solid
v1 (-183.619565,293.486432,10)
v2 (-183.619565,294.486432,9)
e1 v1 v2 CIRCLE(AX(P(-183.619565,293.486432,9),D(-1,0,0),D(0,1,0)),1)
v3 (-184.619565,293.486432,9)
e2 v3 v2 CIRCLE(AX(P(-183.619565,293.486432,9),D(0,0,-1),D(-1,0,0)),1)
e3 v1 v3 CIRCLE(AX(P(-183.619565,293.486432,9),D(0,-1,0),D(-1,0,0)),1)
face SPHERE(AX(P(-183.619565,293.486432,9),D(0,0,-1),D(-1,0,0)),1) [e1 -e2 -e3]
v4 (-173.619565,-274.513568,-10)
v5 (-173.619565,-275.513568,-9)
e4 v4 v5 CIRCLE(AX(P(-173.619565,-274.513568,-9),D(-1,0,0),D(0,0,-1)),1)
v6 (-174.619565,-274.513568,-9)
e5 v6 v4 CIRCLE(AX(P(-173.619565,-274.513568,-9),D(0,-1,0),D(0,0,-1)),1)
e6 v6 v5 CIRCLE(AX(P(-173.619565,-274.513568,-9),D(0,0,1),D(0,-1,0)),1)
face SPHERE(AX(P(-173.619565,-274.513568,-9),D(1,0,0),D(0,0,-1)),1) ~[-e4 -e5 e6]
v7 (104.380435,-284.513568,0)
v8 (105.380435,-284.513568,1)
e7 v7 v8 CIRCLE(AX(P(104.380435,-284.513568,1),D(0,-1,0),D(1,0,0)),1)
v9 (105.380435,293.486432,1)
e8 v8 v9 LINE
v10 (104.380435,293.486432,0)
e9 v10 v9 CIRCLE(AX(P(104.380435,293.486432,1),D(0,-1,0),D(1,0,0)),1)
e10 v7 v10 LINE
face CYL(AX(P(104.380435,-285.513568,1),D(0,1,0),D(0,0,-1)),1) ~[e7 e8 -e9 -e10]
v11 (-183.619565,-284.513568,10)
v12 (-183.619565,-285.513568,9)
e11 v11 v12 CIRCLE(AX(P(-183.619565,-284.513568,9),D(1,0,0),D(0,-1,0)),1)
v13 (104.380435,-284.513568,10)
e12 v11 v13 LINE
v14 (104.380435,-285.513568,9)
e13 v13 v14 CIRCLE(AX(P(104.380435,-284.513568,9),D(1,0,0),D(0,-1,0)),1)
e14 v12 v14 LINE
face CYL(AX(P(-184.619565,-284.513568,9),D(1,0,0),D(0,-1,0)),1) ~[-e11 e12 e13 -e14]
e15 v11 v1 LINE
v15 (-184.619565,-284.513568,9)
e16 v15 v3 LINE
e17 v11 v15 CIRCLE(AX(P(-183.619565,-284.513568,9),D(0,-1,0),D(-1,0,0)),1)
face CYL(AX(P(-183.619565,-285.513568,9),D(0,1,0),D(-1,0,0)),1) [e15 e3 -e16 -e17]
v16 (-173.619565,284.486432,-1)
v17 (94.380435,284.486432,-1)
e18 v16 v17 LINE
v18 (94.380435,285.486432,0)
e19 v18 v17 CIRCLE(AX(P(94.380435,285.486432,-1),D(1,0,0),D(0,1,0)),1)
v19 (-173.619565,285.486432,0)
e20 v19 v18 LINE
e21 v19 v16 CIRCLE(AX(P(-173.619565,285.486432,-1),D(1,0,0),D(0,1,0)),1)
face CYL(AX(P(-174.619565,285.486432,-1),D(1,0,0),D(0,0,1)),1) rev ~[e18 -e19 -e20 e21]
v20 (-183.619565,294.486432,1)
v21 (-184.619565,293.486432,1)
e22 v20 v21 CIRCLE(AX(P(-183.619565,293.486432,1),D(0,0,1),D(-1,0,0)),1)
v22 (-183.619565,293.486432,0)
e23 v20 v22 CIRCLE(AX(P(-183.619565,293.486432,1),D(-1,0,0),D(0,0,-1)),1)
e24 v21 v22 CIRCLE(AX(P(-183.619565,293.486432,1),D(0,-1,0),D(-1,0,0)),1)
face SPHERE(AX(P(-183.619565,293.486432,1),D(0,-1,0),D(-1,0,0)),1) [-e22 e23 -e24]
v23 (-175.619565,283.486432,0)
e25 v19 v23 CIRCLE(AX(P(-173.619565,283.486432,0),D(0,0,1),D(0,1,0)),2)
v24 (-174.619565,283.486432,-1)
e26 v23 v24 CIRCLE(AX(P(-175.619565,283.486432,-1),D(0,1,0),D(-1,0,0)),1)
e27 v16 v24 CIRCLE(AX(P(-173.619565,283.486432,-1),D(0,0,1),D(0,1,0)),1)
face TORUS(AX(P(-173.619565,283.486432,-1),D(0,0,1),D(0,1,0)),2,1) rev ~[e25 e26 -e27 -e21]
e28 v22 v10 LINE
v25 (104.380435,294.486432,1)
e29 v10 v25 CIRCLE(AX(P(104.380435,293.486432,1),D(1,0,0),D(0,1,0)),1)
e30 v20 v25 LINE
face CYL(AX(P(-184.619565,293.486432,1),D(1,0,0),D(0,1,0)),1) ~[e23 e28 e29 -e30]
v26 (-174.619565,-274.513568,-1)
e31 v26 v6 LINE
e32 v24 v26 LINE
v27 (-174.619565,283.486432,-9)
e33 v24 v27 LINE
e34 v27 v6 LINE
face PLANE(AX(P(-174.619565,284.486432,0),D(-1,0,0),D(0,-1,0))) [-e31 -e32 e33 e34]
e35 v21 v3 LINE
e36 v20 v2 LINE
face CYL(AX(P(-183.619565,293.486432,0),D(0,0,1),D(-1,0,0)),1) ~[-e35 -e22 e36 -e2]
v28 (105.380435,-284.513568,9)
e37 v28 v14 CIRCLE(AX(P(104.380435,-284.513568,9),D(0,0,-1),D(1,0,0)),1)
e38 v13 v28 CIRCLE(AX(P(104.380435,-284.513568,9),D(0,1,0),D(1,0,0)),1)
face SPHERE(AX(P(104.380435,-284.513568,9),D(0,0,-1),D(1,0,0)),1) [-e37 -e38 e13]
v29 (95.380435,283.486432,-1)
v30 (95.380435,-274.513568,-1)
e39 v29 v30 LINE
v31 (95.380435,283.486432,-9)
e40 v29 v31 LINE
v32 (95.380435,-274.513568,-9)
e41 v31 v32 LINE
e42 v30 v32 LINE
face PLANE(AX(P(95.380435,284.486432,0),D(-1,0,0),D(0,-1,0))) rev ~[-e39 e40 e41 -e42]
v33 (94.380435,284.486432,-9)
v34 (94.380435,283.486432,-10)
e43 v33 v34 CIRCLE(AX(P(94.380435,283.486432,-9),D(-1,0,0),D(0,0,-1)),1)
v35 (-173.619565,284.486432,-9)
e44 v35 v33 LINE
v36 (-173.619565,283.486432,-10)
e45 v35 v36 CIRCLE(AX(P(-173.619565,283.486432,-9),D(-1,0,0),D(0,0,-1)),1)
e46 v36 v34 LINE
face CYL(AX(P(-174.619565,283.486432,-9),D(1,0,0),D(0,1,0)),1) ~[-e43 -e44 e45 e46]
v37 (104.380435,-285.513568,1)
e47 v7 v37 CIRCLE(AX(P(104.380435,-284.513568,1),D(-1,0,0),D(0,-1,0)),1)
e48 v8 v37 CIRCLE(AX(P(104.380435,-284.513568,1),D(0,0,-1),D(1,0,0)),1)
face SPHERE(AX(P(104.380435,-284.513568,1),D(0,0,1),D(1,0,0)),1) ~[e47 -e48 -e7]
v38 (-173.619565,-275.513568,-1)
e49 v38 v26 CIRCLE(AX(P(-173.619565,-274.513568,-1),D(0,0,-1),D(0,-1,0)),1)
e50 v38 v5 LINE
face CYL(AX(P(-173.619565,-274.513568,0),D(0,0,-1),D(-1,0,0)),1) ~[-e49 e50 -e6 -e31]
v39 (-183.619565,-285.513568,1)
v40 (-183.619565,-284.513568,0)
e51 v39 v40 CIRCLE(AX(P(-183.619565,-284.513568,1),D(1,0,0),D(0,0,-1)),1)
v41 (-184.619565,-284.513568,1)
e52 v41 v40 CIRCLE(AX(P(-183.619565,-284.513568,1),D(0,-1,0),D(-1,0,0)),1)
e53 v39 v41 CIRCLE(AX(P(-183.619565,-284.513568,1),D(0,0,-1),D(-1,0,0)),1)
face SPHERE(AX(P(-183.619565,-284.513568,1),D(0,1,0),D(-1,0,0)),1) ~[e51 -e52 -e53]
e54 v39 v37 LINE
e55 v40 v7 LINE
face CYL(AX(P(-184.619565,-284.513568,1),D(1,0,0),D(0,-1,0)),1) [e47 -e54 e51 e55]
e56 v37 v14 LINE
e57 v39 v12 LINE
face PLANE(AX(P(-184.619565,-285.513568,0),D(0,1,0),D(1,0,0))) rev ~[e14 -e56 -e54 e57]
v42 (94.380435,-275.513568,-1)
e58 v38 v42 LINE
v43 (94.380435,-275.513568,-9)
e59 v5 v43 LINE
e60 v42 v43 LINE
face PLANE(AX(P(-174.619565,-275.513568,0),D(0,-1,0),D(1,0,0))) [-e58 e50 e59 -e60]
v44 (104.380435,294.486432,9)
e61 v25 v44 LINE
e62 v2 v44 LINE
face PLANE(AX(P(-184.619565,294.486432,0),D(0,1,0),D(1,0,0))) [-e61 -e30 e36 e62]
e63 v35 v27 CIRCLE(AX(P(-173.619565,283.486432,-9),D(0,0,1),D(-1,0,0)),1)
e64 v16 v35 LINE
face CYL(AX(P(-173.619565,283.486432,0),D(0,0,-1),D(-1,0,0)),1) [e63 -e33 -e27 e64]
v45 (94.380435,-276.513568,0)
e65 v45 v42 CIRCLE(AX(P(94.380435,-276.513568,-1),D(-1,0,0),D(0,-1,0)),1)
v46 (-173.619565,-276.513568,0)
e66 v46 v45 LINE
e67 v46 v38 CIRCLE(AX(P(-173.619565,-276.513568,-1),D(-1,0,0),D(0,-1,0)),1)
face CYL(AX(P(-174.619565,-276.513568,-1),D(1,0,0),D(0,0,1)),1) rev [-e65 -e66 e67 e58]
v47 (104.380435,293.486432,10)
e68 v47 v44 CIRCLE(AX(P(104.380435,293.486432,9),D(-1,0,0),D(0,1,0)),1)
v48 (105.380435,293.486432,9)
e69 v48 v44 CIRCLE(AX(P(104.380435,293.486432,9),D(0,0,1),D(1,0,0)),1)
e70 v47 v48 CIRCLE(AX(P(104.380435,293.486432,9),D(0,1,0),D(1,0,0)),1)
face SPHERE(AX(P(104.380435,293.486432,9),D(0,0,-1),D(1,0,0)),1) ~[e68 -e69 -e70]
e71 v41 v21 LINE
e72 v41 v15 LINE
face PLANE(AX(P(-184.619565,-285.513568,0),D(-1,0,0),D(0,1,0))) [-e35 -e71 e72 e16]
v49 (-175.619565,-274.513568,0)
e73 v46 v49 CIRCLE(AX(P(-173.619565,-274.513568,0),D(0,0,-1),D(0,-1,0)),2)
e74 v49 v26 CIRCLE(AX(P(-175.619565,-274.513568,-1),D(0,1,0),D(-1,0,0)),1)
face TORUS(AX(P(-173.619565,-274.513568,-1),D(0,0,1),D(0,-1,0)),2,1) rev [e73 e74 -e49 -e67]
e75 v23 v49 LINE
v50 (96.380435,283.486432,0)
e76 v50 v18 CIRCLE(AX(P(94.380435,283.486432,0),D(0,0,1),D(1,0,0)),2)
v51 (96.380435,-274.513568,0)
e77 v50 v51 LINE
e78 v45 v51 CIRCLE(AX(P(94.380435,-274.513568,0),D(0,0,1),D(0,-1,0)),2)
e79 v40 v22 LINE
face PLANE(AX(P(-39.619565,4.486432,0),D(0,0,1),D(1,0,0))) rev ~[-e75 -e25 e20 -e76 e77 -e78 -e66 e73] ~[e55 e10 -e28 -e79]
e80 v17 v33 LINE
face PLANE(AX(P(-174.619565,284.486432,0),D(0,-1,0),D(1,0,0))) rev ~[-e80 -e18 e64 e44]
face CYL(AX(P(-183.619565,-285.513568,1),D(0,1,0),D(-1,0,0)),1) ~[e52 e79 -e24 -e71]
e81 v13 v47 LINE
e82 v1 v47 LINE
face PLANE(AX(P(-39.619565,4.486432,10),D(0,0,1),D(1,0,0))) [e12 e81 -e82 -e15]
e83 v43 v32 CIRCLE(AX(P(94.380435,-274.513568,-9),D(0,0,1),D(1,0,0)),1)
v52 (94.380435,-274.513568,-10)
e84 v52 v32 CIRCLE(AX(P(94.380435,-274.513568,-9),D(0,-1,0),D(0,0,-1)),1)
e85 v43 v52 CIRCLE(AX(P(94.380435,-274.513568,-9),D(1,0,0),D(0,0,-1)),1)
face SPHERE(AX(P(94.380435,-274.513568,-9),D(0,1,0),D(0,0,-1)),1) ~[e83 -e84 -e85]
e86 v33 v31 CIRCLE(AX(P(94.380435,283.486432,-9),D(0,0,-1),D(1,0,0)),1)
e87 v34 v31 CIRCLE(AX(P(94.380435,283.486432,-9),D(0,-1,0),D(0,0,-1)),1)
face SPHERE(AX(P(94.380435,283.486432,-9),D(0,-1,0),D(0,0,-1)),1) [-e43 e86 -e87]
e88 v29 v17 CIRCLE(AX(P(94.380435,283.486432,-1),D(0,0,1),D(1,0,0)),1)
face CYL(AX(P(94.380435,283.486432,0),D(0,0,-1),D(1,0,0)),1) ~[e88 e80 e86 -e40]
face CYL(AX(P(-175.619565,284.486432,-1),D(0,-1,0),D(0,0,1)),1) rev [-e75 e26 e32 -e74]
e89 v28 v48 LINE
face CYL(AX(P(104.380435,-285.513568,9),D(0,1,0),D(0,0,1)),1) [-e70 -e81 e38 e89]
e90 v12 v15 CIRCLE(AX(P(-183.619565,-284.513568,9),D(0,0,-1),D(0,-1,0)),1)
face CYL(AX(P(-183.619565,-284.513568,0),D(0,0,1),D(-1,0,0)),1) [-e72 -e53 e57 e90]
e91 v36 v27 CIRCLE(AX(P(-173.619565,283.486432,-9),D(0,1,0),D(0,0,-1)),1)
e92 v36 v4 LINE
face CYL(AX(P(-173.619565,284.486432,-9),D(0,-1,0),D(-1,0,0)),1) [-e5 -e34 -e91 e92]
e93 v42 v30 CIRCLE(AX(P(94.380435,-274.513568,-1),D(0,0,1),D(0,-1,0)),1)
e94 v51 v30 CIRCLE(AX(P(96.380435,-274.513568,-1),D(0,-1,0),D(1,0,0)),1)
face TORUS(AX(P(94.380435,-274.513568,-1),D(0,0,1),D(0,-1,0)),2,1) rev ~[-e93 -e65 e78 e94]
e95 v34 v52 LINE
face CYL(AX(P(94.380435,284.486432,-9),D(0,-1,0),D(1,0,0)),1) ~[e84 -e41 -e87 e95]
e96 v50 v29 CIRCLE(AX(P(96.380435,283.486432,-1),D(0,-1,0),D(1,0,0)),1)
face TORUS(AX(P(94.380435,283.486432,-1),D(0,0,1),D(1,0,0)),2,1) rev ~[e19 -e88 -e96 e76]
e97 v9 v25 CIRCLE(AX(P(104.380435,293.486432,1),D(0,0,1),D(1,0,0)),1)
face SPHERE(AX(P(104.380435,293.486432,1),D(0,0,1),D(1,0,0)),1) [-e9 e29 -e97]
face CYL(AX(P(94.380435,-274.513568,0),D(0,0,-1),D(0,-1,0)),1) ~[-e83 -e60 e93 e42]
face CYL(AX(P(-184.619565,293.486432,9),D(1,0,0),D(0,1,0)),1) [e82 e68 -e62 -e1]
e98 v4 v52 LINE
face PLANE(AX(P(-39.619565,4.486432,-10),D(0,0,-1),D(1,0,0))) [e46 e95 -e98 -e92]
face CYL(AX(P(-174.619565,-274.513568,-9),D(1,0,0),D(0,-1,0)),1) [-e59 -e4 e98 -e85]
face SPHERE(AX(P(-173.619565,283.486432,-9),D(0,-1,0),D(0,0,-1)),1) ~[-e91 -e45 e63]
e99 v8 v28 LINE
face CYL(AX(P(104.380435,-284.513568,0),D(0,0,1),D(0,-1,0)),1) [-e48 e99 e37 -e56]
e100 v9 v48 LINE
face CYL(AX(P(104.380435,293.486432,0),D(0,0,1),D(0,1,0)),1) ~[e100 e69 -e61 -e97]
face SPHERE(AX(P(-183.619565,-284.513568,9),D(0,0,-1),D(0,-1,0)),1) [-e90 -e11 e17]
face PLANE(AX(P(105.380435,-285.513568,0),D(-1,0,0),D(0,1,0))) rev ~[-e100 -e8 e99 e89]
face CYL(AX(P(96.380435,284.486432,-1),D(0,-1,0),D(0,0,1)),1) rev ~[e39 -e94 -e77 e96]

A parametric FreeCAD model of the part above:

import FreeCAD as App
import Part
import Sketcher
from FreeCAD import Vector


def add_polygon(sketch, points):
    """Adds a closed chain of lines whose ends are joined by coincident constraints."""
    first, n = sketch.GeometryCount, len(points)
    for a, b in zip(points, points[1:] + points[:1]):
        sketch.addGeometry(Part.LineSegment(App.Vector(*a, 0), App.Vector(*b, 0)), False)
    for i in range(n):
        sketch.addConstraint(Sketcher.Constraint("Coincident", first + i, 2, first + (i + 1) % n, 1))

doc = App.newDocument("Part")
body = doc.addObject("PartDesign::Body", "Body")

# Sketch on XY plane
sketch1 = body.newObject("Sketcher::SketchObject", "Sketch")
sketch1.AttachmentSupport = (doc.getObject("XY_Plane"), [""])
sketch1.MapMode = "FlatFace"
add_polygon(sketch1, [(-185, 294), (-185, -286), (105, -286), (105, 294)])  # lines 0-3
sketch1.addConstraint([
    Sketcher.Constraint("Vertical", 0),
    Sketcher.Constraint("Horizontal", 1),
    Sketcher.Constraint("Vertical", 2),
    Sketcher.Constraint("Horizontal", 3),
    Sketcher.Constraint("DistanceX", 1, 1, 1, 2, 290.0),
    Sketcher.Constraint("DistanceY", 0, 2, 0, 1, 580.0),
    Sketcher.Constraint("DistanceY", 0, 2, -1, 1, 285.513568),
    Sketcher.Constraint("DistanceX", 0, 2, -1, 1, 184.619565),
])
pad1 = body.newObject("PartDesign::Pad", "Pad")
pad1.Profile = sketch1
pad1.Length = 10

# Sketch on XY plane
sketch2 = body.newObject("Sketcher::SketchObject", "Sketch001")
sketch2.AttachmentSupport = (doc.getObject("XY_Plane"), [""])
sketch2.MapMode = "FlatFace"
add_polygon(sketch2, [(-175, -276), (-175, 284), (95, 284), (95, -276)])  # lines 0-3
sketch2.addConstraint([
    Sketcher.Constraint("Vertical", 0),
    Sketcher.Constraint("Horizontal", 1),
    Sketcher.Constraint("Vertical", 2),
    Sketcher.Constraint("Horizontal", 3),
    Sketcher.Constraint("DistanceX", 1, 1, 1, 2, 270.0),
    Sketcher.Constraint("DistanceY", 0, 1, 0, 2, 560.0),
    Sketcher.Constraint("DistanceY", -1, 1, 0, 2, 284.486432),
    Sketcher.Constraint("DistanceX", 0, 2, -1, 1, 174.619565),
])
pad2 = body.newObject("PartDesign::Pad", "Pad001")
pad2.Profile = sketch2
pad2.Length = 10
pad2.Reversed = True
doc.recompute()

fillet = body.newObject("PartDesign::Fillet", "Fillet")
fillet.Base = (pad2, ["Edge1"])
fillet.UseAllEdges = True
fillet.Radius = 1

doc.recompute()
